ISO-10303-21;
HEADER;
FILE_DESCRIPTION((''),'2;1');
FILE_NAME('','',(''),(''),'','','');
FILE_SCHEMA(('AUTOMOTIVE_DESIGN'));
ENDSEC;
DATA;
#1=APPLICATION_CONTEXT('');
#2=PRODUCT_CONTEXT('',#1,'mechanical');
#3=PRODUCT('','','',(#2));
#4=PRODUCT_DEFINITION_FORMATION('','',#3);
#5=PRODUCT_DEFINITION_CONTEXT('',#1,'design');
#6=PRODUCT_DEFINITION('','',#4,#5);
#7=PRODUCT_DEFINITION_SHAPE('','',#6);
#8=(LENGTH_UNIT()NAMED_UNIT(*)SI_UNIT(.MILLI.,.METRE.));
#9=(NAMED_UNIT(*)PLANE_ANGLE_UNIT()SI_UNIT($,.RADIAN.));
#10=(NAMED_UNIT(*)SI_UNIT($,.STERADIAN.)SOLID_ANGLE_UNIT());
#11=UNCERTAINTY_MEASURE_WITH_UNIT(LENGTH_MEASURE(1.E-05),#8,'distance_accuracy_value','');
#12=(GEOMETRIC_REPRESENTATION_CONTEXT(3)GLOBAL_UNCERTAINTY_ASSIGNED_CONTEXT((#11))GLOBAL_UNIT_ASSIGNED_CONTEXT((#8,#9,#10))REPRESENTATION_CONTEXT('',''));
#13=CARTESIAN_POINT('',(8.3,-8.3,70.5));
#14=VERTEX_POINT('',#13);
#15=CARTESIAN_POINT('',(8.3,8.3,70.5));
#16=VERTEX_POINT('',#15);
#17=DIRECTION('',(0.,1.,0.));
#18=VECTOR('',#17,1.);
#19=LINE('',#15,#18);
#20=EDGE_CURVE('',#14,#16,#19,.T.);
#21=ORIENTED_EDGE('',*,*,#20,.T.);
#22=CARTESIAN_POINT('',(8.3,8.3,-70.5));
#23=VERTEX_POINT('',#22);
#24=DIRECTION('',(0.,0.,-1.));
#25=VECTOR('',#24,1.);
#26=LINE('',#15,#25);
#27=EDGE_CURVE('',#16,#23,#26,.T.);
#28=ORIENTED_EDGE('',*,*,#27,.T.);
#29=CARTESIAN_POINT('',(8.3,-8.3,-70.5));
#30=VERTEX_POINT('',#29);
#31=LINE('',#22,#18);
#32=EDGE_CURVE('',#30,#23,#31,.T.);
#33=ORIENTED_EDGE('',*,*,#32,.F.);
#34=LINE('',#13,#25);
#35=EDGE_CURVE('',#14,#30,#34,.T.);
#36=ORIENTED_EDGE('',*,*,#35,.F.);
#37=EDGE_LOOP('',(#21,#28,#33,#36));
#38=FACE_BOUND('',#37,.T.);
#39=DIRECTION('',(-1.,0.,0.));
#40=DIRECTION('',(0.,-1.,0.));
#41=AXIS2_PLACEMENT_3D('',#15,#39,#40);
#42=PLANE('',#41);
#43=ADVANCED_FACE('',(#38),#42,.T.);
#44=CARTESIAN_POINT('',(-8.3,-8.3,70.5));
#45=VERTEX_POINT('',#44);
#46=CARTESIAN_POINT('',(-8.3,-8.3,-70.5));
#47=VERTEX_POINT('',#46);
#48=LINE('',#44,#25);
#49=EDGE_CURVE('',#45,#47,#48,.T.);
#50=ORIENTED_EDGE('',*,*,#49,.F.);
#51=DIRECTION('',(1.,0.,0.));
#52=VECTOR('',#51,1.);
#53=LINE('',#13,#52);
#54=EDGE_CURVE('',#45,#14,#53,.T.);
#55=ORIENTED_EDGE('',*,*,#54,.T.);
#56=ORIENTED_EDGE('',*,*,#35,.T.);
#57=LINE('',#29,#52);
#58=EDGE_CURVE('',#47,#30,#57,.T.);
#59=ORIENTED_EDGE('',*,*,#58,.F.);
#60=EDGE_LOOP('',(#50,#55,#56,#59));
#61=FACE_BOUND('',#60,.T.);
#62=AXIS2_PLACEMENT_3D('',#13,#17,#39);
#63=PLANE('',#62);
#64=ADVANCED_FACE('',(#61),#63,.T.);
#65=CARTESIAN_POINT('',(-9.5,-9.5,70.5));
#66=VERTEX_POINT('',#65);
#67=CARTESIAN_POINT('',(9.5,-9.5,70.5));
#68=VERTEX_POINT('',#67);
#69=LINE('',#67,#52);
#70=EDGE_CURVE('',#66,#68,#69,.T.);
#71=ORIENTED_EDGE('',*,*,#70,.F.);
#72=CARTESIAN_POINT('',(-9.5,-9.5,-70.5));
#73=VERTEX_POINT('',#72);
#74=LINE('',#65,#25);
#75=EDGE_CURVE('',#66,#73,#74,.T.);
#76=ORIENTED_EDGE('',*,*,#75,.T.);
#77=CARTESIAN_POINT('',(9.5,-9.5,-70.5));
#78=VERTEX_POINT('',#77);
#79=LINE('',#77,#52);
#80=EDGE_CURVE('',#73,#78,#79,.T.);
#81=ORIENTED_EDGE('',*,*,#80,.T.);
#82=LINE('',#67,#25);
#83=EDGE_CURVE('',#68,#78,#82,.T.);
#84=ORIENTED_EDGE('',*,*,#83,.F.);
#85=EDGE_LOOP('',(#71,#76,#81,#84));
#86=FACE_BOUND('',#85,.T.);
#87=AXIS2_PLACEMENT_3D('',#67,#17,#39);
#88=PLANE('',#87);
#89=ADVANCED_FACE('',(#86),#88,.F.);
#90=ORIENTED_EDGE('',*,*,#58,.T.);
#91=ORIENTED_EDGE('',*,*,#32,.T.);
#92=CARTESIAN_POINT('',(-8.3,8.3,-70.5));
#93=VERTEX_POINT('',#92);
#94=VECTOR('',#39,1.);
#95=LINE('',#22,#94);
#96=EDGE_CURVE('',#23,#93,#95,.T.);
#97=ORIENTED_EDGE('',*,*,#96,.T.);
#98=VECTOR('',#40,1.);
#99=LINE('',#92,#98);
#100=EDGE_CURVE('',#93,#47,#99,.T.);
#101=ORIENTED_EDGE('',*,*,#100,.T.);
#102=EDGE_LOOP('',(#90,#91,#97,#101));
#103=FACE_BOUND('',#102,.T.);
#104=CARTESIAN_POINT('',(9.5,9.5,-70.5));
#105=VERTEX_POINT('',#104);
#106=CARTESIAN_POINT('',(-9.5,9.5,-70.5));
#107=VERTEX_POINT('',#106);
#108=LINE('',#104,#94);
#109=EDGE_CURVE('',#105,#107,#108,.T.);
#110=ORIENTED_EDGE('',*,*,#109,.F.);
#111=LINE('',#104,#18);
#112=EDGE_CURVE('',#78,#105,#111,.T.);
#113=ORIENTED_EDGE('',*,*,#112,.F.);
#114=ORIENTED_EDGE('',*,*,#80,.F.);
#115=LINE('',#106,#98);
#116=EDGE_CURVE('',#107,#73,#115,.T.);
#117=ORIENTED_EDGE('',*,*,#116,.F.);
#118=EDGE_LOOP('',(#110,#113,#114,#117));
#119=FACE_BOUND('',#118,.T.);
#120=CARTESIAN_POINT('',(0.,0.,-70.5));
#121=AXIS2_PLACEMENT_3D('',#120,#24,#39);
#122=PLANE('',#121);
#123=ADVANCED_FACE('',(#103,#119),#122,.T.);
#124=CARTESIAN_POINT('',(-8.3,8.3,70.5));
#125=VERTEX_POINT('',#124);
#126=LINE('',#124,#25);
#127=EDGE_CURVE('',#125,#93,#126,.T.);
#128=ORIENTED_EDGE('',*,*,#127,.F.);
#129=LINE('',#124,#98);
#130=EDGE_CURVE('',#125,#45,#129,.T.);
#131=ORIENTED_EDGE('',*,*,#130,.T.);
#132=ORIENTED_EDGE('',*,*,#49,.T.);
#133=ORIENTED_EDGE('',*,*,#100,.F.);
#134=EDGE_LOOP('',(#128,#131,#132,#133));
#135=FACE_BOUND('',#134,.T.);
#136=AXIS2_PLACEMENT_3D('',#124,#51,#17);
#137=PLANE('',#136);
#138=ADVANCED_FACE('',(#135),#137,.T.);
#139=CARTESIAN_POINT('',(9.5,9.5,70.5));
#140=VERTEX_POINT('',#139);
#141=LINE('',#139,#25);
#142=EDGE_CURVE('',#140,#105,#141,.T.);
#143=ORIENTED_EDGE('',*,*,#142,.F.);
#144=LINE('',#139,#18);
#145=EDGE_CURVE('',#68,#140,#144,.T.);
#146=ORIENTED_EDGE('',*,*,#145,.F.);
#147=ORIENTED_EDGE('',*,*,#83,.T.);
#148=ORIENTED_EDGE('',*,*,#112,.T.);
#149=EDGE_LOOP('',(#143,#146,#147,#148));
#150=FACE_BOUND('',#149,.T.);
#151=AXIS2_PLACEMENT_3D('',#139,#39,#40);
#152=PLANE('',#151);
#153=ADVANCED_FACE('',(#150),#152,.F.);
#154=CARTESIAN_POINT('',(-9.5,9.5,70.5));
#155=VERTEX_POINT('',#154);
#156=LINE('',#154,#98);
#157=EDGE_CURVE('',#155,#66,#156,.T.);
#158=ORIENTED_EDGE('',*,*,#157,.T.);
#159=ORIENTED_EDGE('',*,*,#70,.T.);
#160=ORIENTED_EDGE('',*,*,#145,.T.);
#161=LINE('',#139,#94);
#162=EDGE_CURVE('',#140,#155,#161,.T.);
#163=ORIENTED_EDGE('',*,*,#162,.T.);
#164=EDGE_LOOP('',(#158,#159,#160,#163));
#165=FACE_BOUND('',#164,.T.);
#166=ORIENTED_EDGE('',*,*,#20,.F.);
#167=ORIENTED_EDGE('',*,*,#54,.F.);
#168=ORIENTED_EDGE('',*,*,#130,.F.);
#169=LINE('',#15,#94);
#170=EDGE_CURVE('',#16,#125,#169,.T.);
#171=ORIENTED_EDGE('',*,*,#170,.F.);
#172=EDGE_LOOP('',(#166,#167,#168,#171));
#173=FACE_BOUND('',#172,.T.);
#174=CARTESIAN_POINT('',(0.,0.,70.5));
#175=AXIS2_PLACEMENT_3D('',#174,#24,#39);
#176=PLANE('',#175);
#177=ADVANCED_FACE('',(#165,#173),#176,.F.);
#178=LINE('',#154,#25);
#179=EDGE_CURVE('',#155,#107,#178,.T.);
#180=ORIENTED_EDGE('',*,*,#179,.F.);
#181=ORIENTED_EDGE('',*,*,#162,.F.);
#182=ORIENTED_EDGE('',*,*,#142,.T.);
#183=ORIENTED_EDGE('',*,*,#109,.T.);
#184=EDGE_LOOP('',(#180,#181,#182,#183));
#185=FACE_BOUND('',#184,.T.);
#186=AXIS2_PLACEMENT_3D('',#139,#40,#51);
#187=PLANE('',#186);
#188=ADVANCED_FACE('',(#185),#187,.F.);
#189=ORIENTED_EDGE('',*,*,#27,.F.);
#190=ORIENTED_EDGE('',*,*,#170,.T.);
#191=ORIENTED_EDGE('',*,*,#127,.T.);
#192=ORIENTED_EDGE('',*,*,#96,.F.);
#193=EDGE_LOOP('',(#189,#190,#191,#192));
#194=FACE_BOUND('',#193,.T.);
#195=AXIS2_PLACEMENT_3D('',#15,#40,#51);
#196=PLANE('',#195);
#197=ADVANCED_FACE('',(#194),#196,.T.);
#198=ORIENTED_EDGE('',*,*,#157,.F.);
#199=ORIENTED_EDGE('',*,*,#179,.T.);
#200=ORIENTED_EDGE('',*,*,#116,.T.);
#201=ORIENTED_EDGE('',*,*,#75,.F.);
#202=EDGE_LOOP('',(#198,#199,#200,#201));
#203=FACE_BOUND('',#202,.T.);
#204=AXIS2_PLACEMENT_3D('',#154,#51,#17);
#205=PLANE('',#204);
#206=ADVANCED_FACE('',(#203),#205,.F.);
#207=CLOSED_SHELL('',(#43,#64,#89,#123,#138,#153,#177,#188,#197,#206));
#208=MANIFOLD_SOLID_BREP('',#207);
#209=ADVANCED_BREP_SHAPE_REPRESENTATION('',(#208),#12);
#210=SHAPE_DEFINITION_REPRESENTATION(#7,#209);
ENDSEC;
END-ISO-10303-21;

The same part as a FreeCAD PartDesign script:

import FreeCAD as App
import Part
import Sketcher
Q = App.Units.Quantity


def add_polygon(sketch, points):
    """Adds a closed chain of lines whose ends are joined by coincident constraints."""
    first, n = sketch.GeometryCount, len(points)
    for a, b in zip(points, points[1:] + points[:1]):
        sketch.addGeometry(Part.LineSegment(App.Vector(*a, 0), App.Vector(*b, 0)), False)
    for i in range(n):
        sketch.addConstraint(Sketcher.Constraint("Coincident", first + i, 2, first + (i + 1) % n, 1))

doc = App.newDocument("Part")
body = doc.addObject("PartDesign::Body", "Body")

sketch1 = body.newObject("Sketcher::SketchObject", "Sketch")
sketch1.AttachmentSupport = (doc.getObject("XY_Plane"), [""])
sketch1.MapMode = "FlatFace"
add_polygon(sketch1, [(-9.5, 9.5), (-9.5, -9.5), (9.5, -9.5), (9.5, 9.5)])
add_polygon(sketch1, [(8.3, -8.3), (-8.3, -8.3), (-8.3, 8.3), (8.3, 8.3)])
sketch1.addConstraint(Sketcher.Constraint("Vertical", 0))
sketch1.addConstraint(Sketcher.Constraint("Horizontal", 1))
sketch1.addConstraint(Sketcher.Constraint("Vertical", 2))
sketch1.addConstraint(Sketcher.Constraint("Horizontal", 3))
sketch1.addConstraint(Sketcher.Constraint("Horizontal", 4))
sketch1.addConstraint(Sketcher.Constraint("Vertical", 5))
sketch1.addConstraint(Sketcher.Constraint("Horizontal", 6))
sketch1.addConstraint(Sketcher.Constraint("Vertical", 7))
sketch1.addConstraint(Sketcher.Constraint("Symmetric", 0, 2, 2, 2, -1, 1))
sketch1.addConstraint(Sketcher.Constraint("Symmetric", 4, 2, 6, 2, -1, 1))
sketch1.addConstraint(Sketcher.Constraint("Equal", 3, 0))
sketch1.addConstraint(Sketcher.Constraint("Equal", 6, 5))
sketch1.addConstraint(Sketcher.Constraint("DistanceX", 1, 1, 1, 2, Q("19 mm")))
sketch1.addConstraint(Sketcher.Constraint("DistanceX", 4, 2, 4, 1, Q("16.6 mm")))
pad1 = body.newObject("PartDesign::Pad", "Pad")
pad1.Profile = sketch1
pad1.Length = 141
pad1.Midplane = True

doc.recompute()
